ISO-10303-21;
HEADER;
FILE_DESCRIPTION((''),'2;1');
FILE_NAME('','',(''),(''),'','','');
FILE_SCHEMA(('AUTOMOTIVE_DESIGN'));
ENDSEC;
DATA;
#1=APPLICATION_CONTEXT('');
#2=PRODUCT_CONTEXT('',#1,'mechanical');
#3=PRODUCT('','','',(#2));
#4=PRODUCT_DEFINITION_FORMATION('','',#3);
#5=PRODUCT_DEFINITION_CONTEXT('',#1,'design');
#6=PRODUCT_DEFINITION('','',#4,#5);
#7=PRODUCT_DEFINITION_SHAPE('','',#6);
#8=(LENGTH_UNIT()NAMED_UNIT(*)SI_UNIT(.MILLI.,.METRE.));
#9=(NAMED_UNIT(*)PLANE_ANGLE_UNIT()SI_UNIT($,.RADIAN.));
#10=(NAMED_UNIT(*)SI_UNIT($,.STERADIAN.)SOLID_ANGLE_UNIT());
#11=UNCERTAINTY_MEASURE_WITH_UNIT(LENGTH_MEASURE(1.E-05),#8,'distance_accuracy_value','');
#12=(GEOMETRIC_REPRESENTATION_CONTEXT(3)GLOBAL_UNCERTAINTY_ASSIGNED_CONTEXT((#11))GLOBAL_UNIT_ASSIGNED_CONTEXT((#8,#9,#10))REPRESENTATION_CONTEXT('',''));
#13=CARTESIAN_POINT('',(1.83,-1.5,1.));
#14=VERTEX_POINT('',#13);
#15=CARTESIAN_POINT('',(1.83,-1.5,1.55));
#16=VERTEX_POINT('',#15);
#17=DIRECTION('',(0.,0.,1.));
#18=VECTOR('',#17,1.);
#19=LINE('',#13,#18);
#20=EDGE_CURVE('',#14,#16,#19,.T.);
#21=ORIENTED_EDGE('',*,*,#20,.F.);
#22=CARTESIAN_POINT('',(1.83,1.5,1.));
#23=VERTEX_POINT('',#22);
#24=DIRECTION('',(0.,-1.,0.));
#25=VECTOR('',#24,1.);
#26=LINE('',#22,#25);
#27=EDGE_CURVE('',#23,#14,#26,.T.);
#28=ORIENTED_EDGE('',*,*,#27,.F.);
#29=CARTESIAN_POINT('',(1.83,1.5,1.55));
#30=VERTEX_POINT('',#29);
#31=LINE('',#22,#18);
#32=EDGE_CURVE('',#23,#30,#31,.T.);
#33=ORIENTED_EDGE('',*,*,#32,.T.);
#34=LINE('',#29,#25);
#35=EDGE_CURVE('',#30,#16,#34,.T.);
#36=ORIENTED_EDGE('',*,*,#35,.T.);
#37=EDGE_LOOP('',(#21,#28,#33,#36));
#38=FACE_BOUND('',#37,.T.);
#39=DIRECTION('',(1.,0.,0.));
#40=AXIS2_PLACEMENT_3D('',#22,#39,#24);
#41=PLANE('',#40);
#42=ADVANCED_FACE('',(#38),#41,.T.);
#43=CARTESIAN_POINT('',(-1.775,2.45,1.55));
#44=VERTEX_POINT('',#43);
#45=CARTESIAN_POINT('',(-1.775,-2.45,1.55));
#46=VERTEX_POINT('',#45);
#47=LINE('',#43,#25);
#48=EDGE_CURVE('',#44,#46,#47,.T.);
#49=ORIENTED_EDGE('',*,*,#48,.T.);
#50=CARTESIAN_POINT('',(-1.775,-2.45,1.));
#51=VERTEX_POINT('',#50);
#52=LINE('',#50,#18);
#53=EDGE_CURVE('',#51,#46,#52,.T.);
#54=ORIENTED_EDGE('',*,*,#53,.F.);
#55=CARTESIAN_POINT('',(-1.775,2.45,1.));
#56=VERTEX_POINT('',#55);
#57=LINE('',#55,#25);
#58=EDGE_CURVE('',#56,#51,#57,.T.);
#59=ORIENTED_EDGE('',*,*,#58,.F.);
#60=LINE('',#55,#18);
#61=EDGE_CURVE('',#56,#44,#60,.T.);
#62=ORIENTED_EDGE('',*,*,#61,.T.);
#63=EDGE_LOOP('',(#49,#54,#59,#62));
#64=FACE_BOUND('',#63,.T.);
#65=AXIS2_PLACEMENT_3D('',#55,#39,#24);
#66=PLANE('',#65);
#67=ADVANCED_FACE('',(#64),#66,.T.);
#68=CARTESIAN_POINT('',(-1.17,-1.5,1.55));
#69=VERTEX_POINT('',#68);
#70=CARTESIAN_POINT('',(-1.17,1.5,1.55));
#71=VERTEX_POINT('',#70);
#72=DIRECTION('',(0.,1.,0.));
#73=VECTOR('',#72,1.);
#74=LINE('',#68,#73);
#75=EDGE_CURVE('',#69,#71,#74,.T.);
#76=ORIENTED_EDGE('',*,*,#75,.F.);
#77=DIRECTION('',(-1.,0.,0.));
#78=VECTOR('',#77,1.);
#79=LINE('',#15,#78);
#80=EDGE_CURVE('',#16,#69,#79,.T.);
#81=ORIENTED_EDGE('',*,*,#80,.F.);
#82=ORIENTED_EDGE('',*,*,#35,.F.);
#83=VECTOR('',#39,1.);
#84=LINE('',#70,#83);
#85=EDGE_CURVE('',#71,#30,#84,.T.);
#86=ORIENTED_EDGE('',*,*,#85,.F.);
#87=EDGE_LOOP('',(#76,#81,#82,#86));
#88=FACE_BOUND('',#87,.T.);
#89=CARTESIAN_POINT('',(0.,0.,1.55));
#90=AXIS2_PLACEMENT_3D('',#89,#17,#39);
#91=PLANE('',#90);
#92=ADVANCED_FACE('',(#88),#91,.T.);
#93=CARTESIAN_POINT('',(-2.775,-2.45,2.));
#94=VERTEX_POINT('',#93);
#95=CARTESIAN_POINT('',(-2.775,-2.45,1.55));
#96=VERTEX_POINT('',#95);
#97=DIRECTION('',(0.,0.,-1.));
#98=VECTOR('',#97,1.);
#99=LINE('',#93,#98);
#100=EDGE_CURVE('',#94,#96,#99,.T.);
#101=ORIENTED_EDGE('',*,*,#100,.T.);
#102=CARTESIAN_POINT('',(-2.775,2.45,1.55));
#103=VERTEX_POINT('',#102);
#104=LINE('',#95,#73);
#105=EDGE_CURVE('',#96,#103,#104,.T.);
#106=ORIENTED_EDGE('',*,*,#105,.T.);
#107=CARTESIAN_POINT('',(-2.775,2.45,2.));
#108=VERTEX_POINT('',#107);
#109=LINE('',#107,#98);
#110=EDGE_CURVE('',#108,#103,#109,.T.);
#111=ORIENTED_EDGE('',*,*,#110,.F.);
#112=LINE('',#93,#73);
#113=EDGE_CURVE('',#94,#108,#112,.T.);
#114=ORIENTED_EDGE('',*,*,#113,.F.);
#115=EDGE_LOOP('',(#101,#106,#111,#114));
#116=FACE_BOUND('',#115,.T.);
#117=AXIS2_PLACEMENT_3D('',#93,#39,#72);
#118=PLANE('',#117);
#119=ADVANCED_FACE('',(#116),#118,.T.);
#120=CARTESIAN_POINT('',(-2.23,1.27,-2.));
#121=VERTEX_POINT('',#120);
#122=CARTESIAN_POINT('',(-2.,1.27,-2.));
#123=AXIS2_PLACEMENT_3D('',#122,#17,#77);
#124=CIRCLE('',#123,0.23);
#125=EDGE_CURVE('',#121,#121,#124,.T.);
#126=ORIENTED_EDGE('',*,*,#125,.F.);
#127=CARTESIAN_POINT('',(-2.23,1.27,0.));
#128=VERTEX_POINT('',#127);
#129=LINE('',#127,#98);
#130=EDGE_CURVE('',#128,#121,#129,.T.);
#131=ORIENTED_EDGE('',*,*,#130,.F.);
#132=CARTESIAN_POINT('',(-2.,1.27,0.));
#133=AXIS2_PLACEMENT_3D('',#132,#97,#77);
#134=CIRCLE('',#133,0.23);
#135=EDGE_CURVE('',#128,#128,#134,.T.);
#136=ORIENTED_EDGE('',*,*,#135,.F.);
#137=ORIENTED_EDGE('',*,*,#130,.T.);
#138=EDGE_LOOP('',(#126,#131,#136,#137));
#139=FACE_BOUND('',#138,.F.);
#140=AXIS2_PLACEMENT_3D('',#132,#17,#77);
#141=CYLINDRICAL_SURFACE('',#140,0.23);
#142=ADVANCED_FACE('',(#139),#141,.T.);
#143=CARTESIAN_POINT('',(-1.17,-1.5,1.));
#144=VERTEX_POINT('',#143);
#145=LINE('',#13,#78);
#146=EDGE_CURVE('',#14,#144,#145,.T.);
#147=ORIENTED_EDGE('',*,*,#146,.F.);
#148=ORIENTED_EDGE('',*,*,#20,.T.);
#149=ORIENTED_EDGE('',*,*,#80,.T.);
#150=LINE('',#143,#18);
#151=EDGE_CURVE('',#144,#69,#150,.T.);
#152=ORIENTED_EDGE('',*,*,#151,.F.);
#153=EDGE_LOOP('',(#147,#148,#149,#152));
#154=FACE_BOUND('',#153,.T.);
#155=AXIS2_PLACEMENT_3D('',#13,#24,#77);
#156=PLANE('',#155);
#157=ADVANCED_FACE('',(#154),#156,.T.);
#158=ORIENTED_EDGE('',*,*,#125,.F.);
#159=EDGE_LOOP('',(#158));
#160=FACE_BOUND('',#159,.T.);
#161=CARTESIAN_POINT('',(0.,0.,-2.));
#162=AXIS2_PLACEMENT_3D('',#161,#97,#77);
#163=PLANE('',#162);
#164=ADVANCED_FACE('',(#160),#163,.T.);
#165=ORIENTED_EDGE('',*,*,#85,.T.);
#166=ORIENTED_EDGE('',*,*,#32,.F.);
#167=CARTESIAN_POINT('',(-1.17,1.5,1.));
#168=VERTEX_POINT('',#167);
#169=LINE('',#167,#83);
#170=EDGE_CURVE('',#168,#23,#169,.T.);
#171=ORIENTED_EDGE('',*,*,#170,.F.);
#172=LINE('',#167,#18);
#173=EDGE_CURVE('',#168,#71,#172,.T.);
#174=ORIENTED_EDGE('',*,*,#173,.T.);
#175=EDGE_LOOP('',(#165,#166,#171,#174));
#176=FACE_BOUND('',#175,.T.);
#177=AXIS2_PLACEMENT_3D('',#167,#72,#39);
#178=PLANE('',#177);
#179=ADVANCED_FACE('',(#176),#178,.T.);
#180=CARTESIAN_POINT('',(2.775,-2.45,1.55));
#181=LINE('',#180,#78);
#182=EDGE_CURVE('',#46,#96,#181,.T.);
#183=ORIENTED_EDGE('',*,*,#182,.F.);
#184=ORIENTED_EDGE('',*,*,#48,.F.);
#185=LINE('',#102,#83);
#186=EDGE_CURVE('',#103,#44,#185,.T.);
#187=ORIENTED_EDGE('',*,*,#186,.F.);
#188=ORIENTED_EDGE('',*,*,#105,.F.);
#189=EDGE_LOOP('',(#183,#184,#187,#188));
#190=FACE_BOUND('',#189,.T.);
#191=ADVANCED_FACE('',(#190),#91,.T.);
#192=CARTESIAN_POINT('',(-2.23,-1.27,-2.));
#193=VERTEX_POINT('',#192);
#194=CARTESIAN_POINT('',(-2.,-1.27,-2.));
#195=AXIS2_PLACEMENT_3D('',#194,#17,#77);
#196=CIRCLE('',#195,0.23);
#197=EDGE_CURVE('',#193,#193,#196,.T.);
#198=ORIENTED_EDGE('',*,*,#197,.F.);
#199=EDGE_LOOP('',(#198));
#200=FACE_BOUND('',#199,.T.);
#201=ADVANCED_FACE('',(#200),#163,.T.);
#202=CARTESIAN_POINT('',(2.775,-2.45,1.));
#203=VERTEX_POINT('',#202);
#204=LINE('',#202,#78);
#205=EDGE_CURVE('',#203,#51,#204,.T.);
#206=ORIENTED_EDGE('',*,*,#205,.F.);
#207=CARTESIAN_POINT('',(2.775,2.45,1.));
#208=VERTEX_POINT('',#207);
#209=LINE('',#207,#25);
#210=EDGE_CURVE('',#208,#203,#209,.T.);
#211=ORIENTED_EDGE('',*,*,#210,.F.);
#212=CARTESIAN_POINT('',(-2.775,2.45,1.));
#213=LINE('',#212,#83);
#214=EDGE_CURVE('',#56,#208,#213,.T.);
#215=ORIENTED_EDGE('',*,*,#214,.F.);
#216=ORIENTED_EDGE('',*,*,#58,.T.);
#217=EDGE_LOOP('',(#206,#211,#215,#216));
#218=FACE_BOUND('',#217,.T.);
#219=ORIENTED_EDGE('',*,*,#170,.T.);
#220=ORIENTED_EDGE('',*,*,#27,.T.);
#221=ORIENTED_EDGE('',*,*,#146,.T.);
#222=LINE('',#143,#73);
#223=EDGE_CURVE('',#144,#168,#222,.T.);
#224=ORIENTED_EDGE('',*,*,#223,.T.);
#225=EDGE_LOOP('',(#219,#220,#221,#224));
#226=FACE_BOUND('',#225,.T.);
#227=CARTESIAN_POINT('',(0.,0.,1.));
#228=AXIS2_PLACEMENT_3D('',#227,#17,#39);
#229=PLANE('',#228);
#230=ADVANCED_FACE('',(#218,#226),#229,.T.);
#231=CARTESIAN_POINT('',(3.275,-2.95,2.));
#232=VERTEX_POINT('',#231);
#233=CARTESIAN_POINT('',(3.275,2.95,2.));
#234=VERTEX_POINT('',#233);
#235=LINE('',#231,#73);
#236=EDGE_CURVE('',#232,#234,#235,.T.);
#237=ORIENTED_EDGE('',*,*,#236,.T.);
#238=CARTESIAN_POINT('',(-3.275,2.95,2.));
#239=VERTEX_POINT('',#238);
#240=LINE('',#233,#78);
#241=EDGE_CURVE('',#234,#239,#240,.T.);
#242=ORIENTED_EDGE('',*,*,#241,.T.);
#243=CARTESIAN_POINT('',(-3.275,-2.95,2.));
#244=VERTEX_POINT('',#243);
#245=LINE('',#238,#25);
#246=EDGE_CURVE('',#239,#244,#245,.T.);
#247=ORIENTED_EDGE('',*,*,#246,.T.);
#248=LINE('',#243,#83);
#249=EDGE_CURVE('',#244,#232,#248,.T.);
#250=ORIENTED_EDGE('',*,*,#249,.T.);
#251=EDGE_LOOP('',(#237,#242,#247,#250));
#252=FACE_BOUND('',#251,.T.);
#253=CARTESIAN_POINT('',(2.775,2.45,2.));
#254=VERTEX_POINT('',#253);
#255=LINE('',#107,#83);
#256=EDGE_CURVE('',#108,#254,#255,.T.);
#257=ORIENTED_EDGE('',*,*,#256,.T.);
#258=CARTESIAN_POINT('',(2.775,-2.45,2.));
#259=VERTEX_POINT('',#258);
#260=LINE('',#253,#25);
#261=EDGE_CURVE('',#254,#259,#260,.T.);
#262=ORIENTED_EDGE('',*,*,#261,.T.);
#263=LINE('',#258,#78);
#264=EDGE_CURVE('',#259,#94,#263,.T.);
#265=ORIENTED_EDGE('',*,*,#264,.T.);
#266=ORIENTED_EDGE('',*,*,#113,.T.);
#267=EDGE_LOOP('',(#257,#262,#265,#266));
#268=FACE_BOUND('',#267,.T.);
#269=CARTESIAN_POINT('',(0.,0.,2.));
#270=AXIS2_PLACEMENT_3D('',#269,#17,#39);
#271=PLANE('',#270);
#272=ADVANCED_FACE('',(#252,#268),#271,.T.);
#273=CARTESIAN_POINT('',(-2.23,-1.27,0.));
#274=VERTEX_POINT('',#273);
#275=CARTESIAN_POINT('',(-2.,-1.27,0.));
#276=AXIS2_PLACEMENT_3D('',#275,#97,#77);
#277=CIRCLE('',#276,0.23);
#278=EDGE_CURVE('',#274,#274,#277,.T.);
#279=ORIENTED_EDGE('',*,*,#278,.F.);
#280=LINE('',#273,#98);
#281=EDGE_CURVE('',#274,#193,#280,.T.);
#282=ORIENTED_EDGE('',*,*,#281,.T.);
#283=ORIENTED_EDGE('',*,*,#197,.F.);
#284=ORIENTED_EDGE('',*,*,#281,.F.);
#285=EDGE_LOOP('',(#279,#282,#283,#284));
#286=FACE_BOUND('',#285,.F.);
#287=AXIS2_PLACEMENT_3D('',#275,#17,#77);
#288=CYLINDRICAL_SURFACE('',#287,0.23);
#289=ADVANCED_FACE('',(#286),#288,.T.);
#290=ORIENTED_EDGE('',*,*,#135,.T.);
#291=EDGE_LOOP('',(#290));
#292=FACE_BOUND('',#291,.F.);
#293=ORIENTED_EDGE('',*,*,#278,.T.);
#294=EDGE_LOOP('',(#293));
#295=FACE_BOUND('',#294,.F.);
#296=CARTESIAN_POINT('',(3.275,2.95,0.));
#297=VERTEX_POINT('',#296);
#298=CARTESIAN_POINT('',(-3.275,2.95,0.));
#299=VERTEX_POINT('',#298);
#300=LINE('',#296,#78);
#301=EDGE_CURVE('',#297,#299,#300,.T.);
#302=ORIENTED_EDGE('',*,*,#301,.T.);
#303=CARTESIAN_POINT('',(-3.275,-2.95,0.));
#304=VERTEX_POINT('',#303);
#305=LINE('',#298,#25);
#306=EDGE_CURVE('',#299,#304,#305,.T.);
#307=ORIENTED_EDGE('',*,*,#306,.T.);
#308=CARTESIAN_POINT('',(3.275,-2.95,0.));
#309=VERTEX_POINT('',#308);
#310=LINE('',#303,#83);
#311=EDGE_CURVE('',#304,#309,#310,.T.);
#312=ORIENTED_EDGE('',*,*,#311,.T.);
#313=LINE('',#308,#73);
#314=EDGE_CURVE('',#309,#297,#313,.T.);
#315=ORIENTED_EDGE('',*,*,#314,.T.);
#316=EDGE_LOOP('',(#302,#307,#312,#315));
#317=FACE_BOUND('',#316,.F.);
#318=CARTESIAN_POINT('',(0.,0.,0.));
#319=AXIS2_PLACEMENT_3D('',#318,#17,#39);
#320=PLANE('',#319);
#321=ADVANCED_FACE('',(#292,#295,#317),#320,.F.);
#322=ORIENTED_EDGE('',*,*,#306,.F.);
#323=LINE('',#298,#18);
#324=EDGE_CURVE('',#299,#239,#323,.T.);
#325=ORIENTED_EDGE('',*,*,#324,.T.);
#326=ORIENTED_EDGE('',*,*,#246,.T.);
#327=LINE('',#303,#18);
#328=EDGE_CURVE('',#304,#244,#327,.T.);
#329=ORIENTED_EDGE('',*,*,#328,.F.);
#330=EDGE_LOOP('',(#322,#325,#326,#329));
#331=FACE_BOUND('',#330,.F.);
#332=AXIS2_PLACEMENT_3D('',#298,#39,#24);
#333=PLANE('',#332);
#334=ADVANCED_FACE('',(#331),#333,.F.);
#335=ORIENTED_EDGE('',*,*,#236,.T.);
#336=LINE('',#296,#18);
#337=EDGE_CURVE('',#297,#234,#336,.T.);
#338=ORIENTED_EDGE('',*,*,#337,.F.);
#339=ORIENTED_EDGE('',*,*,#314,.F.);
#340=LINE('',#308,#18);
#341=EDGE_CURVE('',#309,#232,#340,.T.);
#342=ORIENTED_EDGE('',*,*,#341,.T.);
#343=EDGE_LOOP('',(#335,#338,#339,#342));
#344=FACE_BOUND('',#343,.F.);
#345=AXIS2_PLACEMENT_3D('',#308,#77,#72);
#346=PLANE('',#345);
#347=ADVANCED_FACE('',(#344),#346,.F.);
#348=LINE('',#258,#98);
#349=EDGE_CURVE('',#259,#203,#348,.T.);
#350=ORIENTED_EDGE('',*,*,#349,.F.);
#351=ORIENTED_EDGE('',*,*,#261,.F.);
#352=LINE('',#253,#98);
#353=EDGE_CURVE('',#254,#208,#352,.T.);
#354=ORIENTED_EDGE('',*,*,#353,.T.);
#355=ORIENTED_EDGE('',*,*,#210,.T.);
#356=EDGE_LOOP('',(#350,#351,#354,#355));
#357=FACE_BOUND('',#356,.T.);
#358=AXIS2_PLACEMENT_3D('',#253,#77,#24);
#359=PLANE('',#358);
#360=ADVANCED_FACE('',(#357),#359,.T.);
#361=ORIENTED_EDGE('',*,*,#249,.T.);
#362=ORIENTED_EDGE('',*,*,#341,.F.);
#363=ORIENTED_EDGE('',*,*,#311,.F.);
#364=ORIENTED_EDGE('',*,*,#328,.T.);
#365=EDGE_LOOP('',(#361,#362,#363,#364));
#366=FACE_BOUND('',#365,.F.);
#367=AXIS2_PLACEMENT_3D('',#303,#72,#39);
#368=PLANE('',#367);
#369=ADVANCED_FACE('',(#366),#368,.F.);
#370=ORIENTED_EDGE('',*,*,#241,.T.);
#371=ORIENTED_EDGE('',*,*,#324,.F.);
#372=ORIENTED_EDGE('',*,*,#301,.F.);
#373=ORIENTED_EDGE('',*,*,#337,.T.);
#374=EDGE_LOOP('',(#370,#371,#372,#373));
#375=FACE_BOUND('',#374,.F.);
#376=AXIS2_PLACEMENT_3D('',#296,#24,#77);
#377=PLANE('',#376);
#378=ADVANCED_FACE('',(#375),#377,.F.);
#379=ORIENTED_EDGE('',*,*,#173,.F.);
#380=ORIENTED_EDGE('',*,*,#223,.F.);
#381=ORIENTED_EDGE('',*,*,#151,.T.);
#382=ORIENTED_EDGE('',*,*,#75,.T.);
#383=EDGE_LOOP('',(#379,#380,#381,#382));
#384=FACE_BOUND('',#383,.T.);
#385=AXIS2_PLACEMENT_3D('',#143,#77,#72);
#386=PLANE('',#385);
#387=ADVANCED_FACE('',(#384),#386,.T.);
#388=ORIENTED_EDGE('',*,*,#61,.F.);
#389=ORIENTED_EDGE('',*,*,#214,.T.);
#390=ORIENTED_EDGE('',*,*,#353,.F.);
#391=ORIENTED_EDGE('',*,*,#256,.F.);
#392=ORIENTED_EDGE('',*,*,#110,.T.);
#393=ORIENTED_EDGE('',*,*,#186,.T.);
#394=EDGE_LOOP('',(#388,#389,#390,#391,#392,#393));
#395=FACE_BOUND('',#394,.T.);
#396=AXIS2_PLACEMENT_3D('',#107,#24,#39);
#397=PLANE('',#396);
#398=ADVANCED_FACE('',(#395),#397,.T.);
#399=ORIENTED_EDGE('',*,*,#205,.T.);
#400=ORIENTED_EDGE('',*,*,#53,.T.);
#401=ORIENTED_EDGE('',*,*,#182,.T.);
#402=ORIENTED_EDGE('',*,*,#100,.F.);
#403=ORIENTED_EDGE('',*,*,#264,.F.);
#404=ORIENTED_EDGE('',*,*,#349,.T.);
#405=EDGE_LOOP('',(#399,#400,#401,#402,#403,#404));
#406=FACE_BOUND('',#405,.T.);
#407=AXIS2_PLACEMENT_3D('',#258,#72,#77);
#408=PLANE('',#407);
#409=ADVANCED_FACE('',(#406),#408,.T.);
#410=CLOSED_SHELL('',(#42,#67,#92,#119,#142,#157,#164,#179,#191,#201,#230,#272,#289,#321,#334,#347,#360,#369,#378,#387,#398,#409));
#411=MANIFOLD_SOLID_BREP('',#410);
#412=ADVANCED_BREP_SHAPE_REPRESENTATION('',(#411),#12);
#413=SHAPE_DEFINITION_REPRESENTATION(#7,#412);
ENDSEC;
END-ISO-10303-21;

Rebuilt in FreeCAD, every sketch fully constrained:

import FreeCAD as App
import Part
import Sketcher

V = App.Vector


def add_polygon(sketch, points):
    """Adds a closed chain of lines whose ends are joined by coincident constraints."""
    first, n = sketch.GeometryCount, len(points)
    for a, b in zip(points, points[1:] + points[:1]):
        sketch.addGeometry(Part.LineSegment(App.Vector(*a, 0), App.Vector(*b, 0)), False)
    for i in range(n):
        sketch.addConstraint(Sketcher.Constraint("Coincident", first + i, 2, first + (i + 1) % n, 1))

doc = App.newDocument("Part")
body = doc.addObject("PartDesign::Body", "Body")

sketch1 = body.newObject("Sketcher::SketchObject", "Sketch")
sketch1.AttachmentSupport = (doc.getObject("XY_Plane"), [""])
sketch1.MapMode = "FlatFace"
add_polygon(sketch1, [(-3, 3), (-3, -3), (3, -3), (3, 3)])
sketch1.addConstraint(Sketcher.Constraint("Vertical", 0))
sketch1.addConstraint(Sketcher.Constraint("Horizontal", 1))
sketch1.addConstraint(Sketcher.Constraint("Vertical", 2))
sketch1.addConstraint(Sketcher.Constraint("Horizontal", 3))
sketch1.addConstraint(Sketcher.Constraint("Symmetric", 0, 2, 2, 2, -1, 1))
sketch1.addConstraint(Sketcher.Constraint("DistanceY", 0, 2, 0, 1, 5.9))
sketch1.addConstraint(Sketcher.Constraint("DistanceX", 1, 1, 1, 2, 6.55))
pad1 = body.newObject("PartDesign::Pad", "Pad")
pad1.Profile = sketch1
pad1.Length = 2

sketch2 = body.newObject("Sketcher::SketchObject", "Sketch001")
sketch2.AttachmentSupport = (doc.getObject("XY_Plane"), [""])
sketch2.MapMode = "FlatFace"
sketch2.AttachmentOffset = App.Placement(V(0, 0, 2), App.Rotation())
add_polygon(sketch2, [(2.8, 2.5), (-2.8, 2.5), (-2.8, -2.5), (2.8, -2.5)])
sketch2.addConstraint(Sketcher.Constraint("Horizontal", 0))
sketch2.addConstraint(Sketcher.Constraint("Vertical", 1))
sketch2.addConstraint(Sketcher.Constraint("Horizontal", 2))
sketch2.addConstraint(Sketcher.Constraint("Vertical", 3))
sketch2.addConstraint(Sketcher.Constraint("Symmetric", 0, 2, 2, 2, -1, 1))
sketch2.addConstraint(Sketcher.Constraint("DistanceY", 1, 2, 1, 1, 4.9))
sketch2.addConstraint(Sketcher.Constraint("DistanceX", 0, 2, 0, 1, 5.55))
pocket1 = body.newObject("PartDesign::Pocket", "Pocket")
pocket1.Profile = sketch2
pocket1.Length = 1

sketch3 = body.newObject("Sketcher::SketchObject", "Sketch002")
sketch3.AttachmentSupport = (doc.getObject("XY_Plane"), [""])
sketch3.MapMode = "FlatFace"
sketch3.AttachmentOffset = App.Placement(V(0, 0, 1), App.Rotation())
add_polygon(sketch3, [(-1.8, 2.5), (-2.8, 2.5), (-2.8, -2.5), (-1.8, -2.5)])
add_polygon(sketch3, [(1.8, 1.5), (-1.2, 1.5), (-1.2, -1.5), (1.8, -1.5)])
sketch3.addConstraint(Sketcher.Constraint("Horizontal", 0))
sketch3.addConstraint(Sketcher.Constraint("Vertical", 1))
sketch3.addConstraint(Sketcher.Constraint("Horizontal", 2))
sketch3.addConstraint(Sketcher.Constraint("Vertical", 3))
sketch3.addConstraint(Sketcher.Constraint("Horizontal", 4))
sketch3.addConstraint(Sketcher.Constraint("Vertical", 5))
sketch3.addConstraint(Sketcher.Constraint("Horizontal", 6))
sketch3.addConstraint(Sketcher.Constraint("Vertical", 7))
sketch3.addConstraint(Sketcher.Constraint("Equal", 6, 5))
sketch3.addConstraint(Sketcher.Constraint("DistanceX", 0, 2, 0, 1, 1.0))
sketch3.addConstraint(Sketcher.Constraint("DistanceX", 4, 2, 4, 1, 3.0))
sketch3.addConstraint(Sketcher.Constraint("DistanceY", 1, 2, 1, 1, 4.9))
sketch3.addConstraint(Sketcher.Constraint("DistanceY", -1, 1, 4, 2, 1.5))
sketch3.addConstraint(Sketcher.Constraint("DistanceY", -1, 1, 0, 2, 2.45))
sketch3.addConstraint(Sketcher.Constraint("DistanceX", 4, 2, -1, 1, 1.17))
sketch3.addConstraint(Sketcher.Constraint("DistanceX", 0, 2, -1, 1, 2.775))
pad2 = body.newObject("PartDesign::Pad", "Pad001")
pad2.Profile = sketch3
pad2.Length = 0.55

sketch4 = body.newObject("Sketcher::SketchObject", "Sketch003")
sketch4.AttachmentSupport = (doc.getObject("XY_Plane"), [""])
sketch4.MapMode = "FlatFace"
sketch4.addGeometry(Part.Circle(V(-2, 1.27, 0), V(0, 0, 1), 0.23), False)
sketch4.addGeometry(Part.Circle(V(-2, -1.27, 0), V(0, 0, 1), 0.23), False)
sketch4.addConstraint(Sketcher.Constraint("Equal", 0, 1))
sketch4.addConstraint(Sketcher.Constraint("Symmetric", 0, 3, 1, 3, -1))
sketch4.addConstraint(Sketcher.Constraint("Diameter", 0, 0.46))
sketch4.addConstraint(Sketcher.Constraint("DistanceX", 0, 3, -1, 1, 2.0))
sketch4.addConstraint(Sketcher.Constraint("DistanceY", 1, 3, 0, 3, 2.54))
pad3 = body.newObject("PartDesign::Pad", "Pad002")
pad3.Profile = sketch4
pad3.Length = 2
pad3.Reversed = True

doc.recompute()
